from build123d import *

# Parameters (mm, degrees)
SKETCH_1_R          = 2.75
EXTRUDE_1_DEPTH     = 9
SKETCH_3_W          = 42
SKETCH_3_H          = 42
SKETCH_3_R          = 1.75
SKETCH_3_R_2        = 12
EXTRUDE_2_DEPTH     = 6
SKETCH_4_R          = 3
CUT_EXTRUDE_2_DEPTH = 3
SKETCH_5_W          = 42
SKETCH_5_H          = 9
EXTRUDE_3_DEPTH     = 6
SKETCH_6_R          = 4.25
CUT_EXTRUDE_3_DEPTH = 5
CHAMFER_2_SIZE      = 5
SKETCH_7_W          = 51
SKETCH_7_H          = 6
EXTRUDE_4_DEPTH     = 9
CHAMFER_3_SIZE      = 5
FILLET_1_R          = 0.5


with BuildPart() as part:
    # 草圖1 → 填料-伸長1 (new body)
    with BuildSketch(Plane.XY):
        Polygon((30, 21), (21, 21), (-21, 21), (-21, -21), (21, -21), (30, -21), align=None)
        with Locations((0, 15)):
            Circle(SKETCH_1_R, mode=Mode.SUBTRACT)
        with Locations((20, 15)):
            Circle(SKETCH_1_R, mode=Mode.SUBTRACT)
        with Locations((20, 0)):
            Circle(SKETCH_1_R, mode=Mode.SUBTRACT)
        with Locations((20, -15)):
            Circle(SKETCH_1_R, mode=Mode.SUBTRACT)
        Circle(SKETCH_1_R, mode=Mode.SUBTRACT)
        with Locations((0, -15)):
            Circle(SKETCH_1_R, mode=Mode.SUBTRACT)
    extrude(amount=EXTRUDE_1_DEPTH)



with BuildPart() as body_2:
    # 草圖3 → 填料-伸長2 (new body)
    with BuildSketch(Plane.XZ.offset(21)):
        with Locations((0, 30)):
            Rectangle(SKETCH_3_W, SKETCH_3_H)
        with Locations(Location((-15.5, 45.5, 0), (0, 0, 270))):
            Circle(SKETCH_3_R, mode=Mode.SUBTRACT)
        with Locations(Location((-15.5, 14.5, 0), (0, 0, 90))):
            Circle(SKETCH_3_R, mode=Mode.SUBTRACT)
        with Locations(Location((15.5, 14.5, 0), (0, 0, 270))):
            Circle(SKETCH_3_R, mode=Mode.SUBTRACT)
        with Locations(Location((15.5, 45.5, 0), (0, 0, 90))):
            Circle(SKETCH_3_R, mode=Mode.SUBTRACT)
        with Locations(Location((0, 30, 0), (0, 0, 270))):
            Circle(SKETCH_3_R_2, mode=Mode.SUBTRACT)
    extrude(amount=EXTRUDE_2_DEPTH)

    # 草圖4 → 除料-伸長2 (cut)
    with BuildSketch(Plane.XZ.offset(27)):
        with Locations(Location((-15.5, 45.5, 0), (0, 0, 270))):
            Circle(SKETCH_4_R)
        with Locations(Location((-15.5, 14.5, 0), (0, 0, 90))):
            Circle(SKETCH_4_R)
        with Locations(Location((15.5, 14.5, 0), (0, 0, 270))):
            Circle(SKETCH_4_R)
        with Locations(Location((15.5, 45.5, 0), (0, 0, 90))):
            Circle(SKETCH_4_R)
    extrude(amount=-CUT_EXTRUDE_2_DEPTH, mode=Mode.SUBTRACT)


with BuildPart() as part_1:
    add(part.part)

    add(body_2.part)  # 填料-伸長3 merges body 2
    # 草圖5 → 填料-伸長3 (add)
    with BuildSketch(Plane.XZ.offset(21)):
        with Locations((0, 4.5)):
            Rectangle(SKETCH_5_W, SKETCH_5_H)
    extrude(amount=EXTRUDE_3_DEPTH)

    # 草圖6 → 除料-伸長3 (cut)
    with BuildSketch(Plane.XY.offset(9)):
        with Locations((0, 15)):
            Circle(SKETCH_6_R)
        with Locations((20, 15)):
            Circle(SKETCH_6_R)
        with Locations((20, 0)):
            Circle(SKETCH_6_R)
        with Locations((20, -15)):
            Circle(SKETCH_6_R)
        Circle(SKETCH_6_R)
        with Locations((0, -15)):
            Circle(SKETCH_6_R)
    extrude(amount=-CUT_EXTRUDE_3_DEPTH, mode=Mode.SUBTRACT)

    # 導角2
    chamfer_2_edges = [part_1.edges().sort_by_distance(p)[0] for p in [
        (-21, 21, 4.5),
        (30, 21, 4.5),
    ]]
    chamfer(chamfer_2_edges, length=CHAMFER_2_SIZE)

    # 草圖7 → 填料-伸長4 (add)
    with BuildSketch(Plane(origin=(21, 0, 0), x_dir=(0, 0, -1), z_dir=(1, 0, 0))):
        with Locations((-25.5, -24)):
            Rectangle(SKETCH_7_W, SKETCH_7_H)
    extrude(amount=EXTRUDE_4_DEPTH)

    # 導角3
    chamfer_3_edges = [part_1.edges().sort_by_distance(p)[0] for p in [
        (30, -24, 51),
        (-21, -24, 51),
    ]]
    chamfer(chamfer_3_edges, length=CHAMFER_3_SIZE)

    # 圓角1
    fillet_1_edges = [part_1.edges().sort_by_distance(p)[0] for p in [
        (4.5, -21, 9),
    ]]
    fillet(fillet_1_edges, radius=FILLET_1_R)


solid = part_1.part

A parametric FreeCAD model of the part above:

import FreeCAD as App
import Part
import Sketcher
from FreeCAD import Vector
Q = App.Units.Quantity


def edges_at(feature, points):
    """Names of the edges that pass closest to the given points."""
    edges = feature.Shape.Edges
    near = lambda p: min(range(len(edges)), key=lambda i: edges[i].distToShape(Part.Vertex(*p))[0])
    return sorted({f"Edge{near(p) + 1}" for p in points})


def add_polygon(sketch, points):
    """Adds a closed chain of lines whose ends are joined by coincident constraints."""
    first, n = sketch.GeometryCount, len(points)
    for a, b in zip(points, points[1:] + points[:1]):
        sketch.addGeometry(Part.LineSegment(App.Vector(*a, 0), App.Vector(*b, 0)), False)
    for i in range(n):
        sketch.addConstraint(Sketcher.Constraint("Coincident", first + i, 2, first + (i + 1) % n, 1))

doc = App.newDocument("Part")
body = doc.addObject("PartDesign::Body", "Body")

# Sketch on XY plane
sketch1 = body.newObject("Sketcher::SketchObject", "Sketch")
sketch1.AttachmentSupport = (doc.getObject("XY_Plane"), [""])
sketch1.MapMode = "FlatFace"
add_polygon(sketch1, [(30, 21), (-21, 21), (-21, -21), (30, -21)])  # lines 0-3
sketch1.addGeometry(Part.Circle(Vector(0, -15, 0), Vector(0, 0, 1), 2.75), False)  # 4
sketch1.addGeometry(Part.Circle(Vector(20, -15, 0), Vector(0, 0, 1), 2.75), False)  # 5
sketch1.addGeometry(Part.Circle(Vector(0, 0, 0), Vector(0, 0, 1), 2.75), False)  # 6
sketch1.addGeometry(Part.Circle(Vector(0, 15, 0), Vector(0, 0, 1), 2.75), False)  # 7
sketch1.addGeometry(Part.Circle(Vector(20, 0, 0), Vector(0, 0, 1), 2.75), False)  # 8
sketch1.addGeometry(Part.Circle(Vector(20, 15, 0), Vector(0, 0, 1), 2.75), False)  # 9
sketch1.addConstraint(Sketcher.Constraint("Horizontal", 0))
sketch1.addConstraint(Sketcher.Constraint("Vertical", 1))
sketch1.addConstraint(Sketcher.Constraint("Horizontal", 2))
sketch1.addConstraint(Sketcher.Constraint("Vertical", 3))
sketch1.addConstraint(Sketcher.Constraint("Coincident", 6, 3, -1, 1))
sketch1.addConstraint(Sketcher.Constraint("Equal", 4, 5))
sketch1.addConstraint(Sketcher.Constraint("Equal", 5, 6))
sketch1.addConstraint(Sketcher.Constraint("Equal", 6, 7))
sketch1.addConstraint(Sketcher.Constraint("Equal", 7, 8))
sketch1.addConstraint(Sketcher.Constraint("Equal", 8, 9))
sketch1.addConstraint(Sketcher.Constraint("Symmetric", 4, 3, 7, 3, -1, 1))
sketch1.addConstraint(Sketcher.Constraint("Symmetric", 5, 3, 9, 3, -1))
sketch1.addConstraint(Sketcher.Constraint("PointOnObject", 4, 3, -2))
sketch1.addConstraint(Sketcher.Constraint("PointOnObject", 8, 3, -1))
sketch1.addConstraint(Sketcher.Constraint("Horizontal", 4, 3, 5, 3))
sketch1.addConstraint(Sketcher.Constraint("Vertical", 5, 3, 8, 3))
sketch1.addConstraint(Sketcher.Constraint("Diameter", 4, Q("5.5 mm")))
sketch1.addConstraint(Sketcher.Constraint("DistanceX", 0, 2, 0, 1, Q("51 mm")))
sketch1.addConstraint(Sketcher.Constraint("DistanceY", 1, 2, 1, 1, Q("42 mm")))
sketch1.addConstraint(Sketcher.Constraint("DistanceY", 4, 3, -1, 1, Q("15 mm")))
sketch1.addConstraint(Sketcher.Constraint("DistanceX", -1, 1, 5, 3, Q("20 mm")))
sketch1.addConstraint(Sketcher.Constraint("DistanceX", 0, 2, -1, 1, Q("21 mm")))
sketch1.addConstraint(Sketcher.Constraint("DistanceY", -1, 1, 0, 2, Q("21 mm")))
pad1 = body.newObject("PartDesign::Pad", "Pad")
pad1.Profile = sketch1
pad1.Length = 9
body2 = doc.addObject("PartDesign::Body", "Body001")

# Sketch on XZ plane
sketch2 = body2.newObject("Sketcher::SketchObject", "Sketch001")
sketch2.AttachmentSupport = (doc.getObject("XZ_Plane001"), [""])
sketch2.MapMode = "FlatFace"
sketch2.AttachmentOffset = App.Placement(Vector(0, 0, 21), App.Rotation())
add_polygon(sketch2, [(-21, 51), (-21, 9), (21, 9), (21, 51)])  # lines 0-3
sketch2.addGeometry(Part.Circle(Vector(-15.5, 14.5, 0), Vector(0, 0, 1), 1.75), False)  # 4
sketch2.addGeometry(Part.Circle(Vector(15.5, 14.5, 0), Vector(0, 0, 1), 1.75), False)  # 5
sketch2.addGeometry(Part.Circle(Vector(-15.5, 45.5, 0), Vector(0, 0, 1), 1.75), False)  # 6
sketch2.addGeometry(Part.Circle(Vector(0, 30, 0), Vector(0, 0, 1), 12), False)  # 7
sketch2.addGeometry(Part.Circle(Vector(15.5, 45.5, 0), Vector(0, 0, 1), 1.75), False)  # 8
sketch2.addConstraint(Sketcher.Constraint("Vertical", 0))
sketch2.addConstraint(Sketcher.Constraint("Horizontal", 1))
sketch2.addConstraint(Sketcher.Constraint("Vertical", 2))
sketch2.addConstraint(Sketcher.Constraint("Horizontal", 3))
sketch2.addConstraint(Sketcher.Constraint("Equal", 4, 5))
sketch2.addConstraint(Sketcher.Constraint("Equal", 5, 6))
sketch2.addConstraint(Sketcher.Constraint("Equal", 6, 8))
sketch2.addConstraint(Sketcher.Constraint("Symmetric", 4, 3, 5, 3, -2))
sketch2.addConstraint(Sketcher.Constraint("Symmetric", 6, 3, 8, 3, -2))
sketch2.addConstraint(Sketcher.Constraint("PointOnObject", 7, 3, -2))
sketch2.addConstraint(Sketcher.Constraint("Vertical", 4, 3, 6, 3))
sketch2.addConstraint(Sketcher.Constraint("Equal", 3, 0))
sketch2.addConstraint(Sketcher.Constraint("Diameter", 7, Q("24 mm")))
sketch2.addConstraint(Sketcher.Constraint("Diameter", 4, Q("3.5 mm")))
sketch2.addConstraint(Sketcher.Constraint("DistanceX", 1, 1, 1, 2, Q("42 mm")))
sketch2.addConstraint(Sketcher.Constraint("DistanceY", -1, 1, 7, 3, Q("30 mm")))
sketch2.addConstraint(Sketcher.Constraint("DistanceX", 0, 2, -1, 1, Q("21 mm")))
sketch2.addConstraint(Sketcher.Constraint("DistanceY", -1, 1, 0, 2, Q("9 mm")))
sketch2.addConstraint(Sketcher.Constraint("DistanceX", 4, 3, 5, 3, Q("31 mm")))
sketch2.addConstraint(Sketcher.Constraint("DistanceY", 4, 3, 6, 3, Q("31 mm")))
sketch2.addConstraint(Sketcher.Constraint("DistanceY", -1, 1, 4, 3, Q("14.5 mm")))
pad2 = body2.newObject("PartDesign::Pad", "Pad001")
pad2.Profile = sketch2
pad2.Length = 6

# Sketch on XZ plane
sketch3 = body2.newObject("Sketcher::SketchObject", "Sketch002")
sketch3.AttachmentSupport = (doc.getObject("XZ_Plane001"), [""])
sketch3.MapMode = "FlatFace"
sketch3.AttachmentOffset = App.Placement(Vector(0, 0, 27), App.Rotation())
sketch3.addGeometry(Part.Circle(Vector(-15.5, 45.5, 0), Vector(0, 0, 1), 3), False)
sketch3.addGeometry(Part.Circle(Vector(-15.5, 14.5, 0), Vector(0, 0, 1), 3), False)
sketch3.addGeometry(Part.Circle(Vector(15.5, 14.5, 0), Vector(0, 0, 1), 3), False)
sketch3.addGeometry(Part.Circle(Vector(15.5, 45.5, 0), Vector(0, 0, 1), 3), False)
sketch3.addConstraint(Sketcher.Constraint("Equal", 0, 1))
sketch3.addConstraint(Sketcher.Constraint("Equal", 1, 2))
sketch3.addConstraint(Sketcher.Constraint("Equal", 2, 3))
sketch3.addConstraint(Sketcher.Constraint("Symmetric", 1, 3, 2, 3, -2))
sketch3.addConstraint(Sketcher.Constraint("Symmetric", 0, 3, 3, 3, -2))
sketch3.addConstraint(Sketcher.Constraint("Vertical", 0, 3, 1, 3))
sketch3.addConstraint(Sketcher.Constraint("Diameter", 0, Q("6 mm")))
sketch3.addConstraint(Sketcher.Constraint("DistanceY", 1, 3, 0, 3, Q("31 mm")))
sketch3.addConstraint(Sketcher.Constraint("DistanceX", 1, 3, 2, 3, Q("31 mm")))
sketch3.addConstraint(Sketcher.Constraint("DistanceY", -1, 1, 0, 3, Q("45.5 mm")))
pocket1 = body2.newObject("PartDesign::Pocket", "Pocket")
pocket1.Profile = sketch3
pocket1.Length = 3
body.AllowCompound = True
doc.recompute()

boolean = body.newObject("PartDesign::Boolean", "Boolean")
boolean.Type = "Fuse"
boolean.addObjects([body2])

# Sketch on XZ plane
sketch4 = body.newObject("Sketcher::SketchObject", "Sketch003")
sketch4.AttachmentSupport = (doc.getObject("XZ_Plane"), [""])
sketch4.MapMode = "FlatFace"
sketch4.AttachmentOffset = App.Placement(Vector(0, 0, 21), App.Rotation())
add_polygon(sketch4, [(-21, 9), (-21, 0), (21, 0), (21, 9)])  # lines 0-3
sketch4.addConstraint(Sketcher.Constraint("Vertical", 0))
sketch4.addConstraint(Sketcher.Constraint("Horizontal", 1))
sketch4.addConstraint(Sketcher.Constraint("Vertical", 2))
sketch4.addConstraint(Sketcher.Constraint("Horizontal", 3))
sketch4.addConstraint(Sketcher.Constraint("Symmetric", 0, 2, 1, 2, -1, 1))
sketch4.addConstraint(Sketcher.Constraint("DistanceX", 1, 1, 1, 2, Q("42 mm")))
sketch4.addConstraint(Sketcher.Constraint("DistanceY", 0, 2, 0, 1, Q("9 mm")))
pad3 = body.newObject("PartDesign::Pad", "Pad002")
pad3.Profile = sketch4
pad3.Length = 6

# Sketch on XY plane
sketch5 = body.newObject("Sketcher::SketchObject", "Sketch004")
sketch5.AttachmentSupport = (doc.getObject("XY_Plane"), [""])
sketch5.MapMode = "FlatFace"
sketch5.AttachmentOffset = App.Placement(Vector(0, 0, 9), App.Rotation())
sketch5.addGeometry(Part.Circle(Vector(0, 15, 0), Vector(0, 0, 1), 4.25), False)
sketch5.addGeometry(Part.Circle(Vector(20, 15, 0), Vector(0, 0, 1), 4.25), False)
sketch5.addGeometry(Part.Circle(Vector(20, 0, 0), Vector(0, 0, 1), 4.25), False)
sketch5.addGeometry(Part.Circle(Vector(20, -15, 0), Vector(0, 0, 1), 4.25), False)
sketch5.addGeometry(Part.Circle(Vector(0, 0, 0), Vector(0, 0, 1), 4.25), False)
sketch5.addGeometry(Part.Circle(Vector(0, -15, 0), Vector(0, 0, 1), 4.25), False)
sketch5.addConstraint(Sketcher.Constraint("Coincident", 4, 3, -1, 1))
sketch5.addConstraint(Sketcher.Constraint("Equal", 0, 1))
sketch5.addConstraint(Sketcher.Constraint("Equal", 1, 2))
sketch5.addConstraint(Sketcher.Constraint("Equal", 2, 3))
sketch5.addConstraint(Sketcher.Constraint("Equal", 3, 4))
sketch5.addConstraint(Sketcher.Constraint("Equal", 4, 5))
sketch5.addConstraint(Sketcher.Constraint("Symmetric", 0, 3, 5, 3, -1, 1))
sketch5.addConstraint(Sketcher.Constraint("Symmetric", 1, 3, 3, 3, -1))
sketch5.addConstraint(Sketcher.Constraint("PointOnObject", 0, 3, -2))
sketch5.addConstraint(Sketcher.Constraint("PointOnObject", 2, 3, -1))
sketch5.addConstraint(Sketcher.Constraint("Horizontal", 0, 3, 1, 3))
sketch5.addConstraint(Sketcher.Constraint("Vertical", 1, 3, 2, 3))
sketch5.addConstraint(Sketcher.Constraint("Diameter", 0, Q("8.5 mm")))
sketch5.addConstraint(Sketcher.Constraint("DistanceY", -1, 1, 0, 3, Q("15 mm")))
sketch5.addConstraint(Sketcher.Constraint("DistanceX", -1, 1, 1, 3, Q("20 mm")))
pocket2 = body.newObject("PartDesign::Pocket", "Pocket001")
pocket2.Profile = sketch5
pocket2.Length = 5
doc.recompute()

chamfer = body.newObject("PartDesign::Chamfer", "Chamfer")
chamfer.Base = (pocket2, edges_at(pocket2, [(-21, 21, 4.5), (30, 21, 4.5)]))
chamfer.Size = 5

# Sketch on YZ plane
sketch6 = body.newObject("Sketcher::SketchObject", "Sketch005")
sketch6.AttachmentSupport = (doc.getObject("YZ_Plane"), [""])
sketch6.MapMode = "FlatFace"
sketch6.AttachmentOffset = App.Placement(Vector(0, 0, 21), App.Rotation())
add_polygon(sketch6, [(-21, 51), (-27, 51), (-27, 0), (-21, 0)])  # lines 0-3
sketch6.addConstraint(Sketcher.Constraint("Horizontal", 0))
sketch6.addConstraint(Sketcher.Constraint("Vertical", 1))
sketch6.addConstraint(Sketcher.Constraint("Horizontal", 2))
sketch6.addConstraint(Sketcher.Constraint("Vertical", 3))
sketch6.addConstraint(Sketcher.Constraint("PointOnObject", 1, 2, -1))
sketch6.addConstraint(Sketcher.Constraint("DistanceX", 0, 2, 0, 1, Q("6 mm")))
sketch6.addConstraint(Sketcher.Constraint("DistanceY", 1, 2, 1, 1, Q("51 mm")))
sketch6.addConstraint(Sketcher.Constraint("DistanceX", 0, 2, -1, 1, Q("27 mm")))
pad4 = body.newObject("PartDesign::Pad", "Pad003")
pad4.Profile = sketch6
pad4.Length = 9
doc.recompute()

chamfer2 = body.newObject("PartDesign::Chamfer", "Chamfer001")
chamfer2.Base = (pad4, edges_at(pad4, [(30, -24, 51), (-21, -24, 51)]))
chamfer2.Size = 5
doc.recompute()

fillet = body.newObject("PartDesign::Fillet", "Fillet")
fillet.Base = (chamfer2, edges_at(chamfer2, [(4.5, -21, 9)]))
fillet.Radius = 0.5

doc.recompute()
